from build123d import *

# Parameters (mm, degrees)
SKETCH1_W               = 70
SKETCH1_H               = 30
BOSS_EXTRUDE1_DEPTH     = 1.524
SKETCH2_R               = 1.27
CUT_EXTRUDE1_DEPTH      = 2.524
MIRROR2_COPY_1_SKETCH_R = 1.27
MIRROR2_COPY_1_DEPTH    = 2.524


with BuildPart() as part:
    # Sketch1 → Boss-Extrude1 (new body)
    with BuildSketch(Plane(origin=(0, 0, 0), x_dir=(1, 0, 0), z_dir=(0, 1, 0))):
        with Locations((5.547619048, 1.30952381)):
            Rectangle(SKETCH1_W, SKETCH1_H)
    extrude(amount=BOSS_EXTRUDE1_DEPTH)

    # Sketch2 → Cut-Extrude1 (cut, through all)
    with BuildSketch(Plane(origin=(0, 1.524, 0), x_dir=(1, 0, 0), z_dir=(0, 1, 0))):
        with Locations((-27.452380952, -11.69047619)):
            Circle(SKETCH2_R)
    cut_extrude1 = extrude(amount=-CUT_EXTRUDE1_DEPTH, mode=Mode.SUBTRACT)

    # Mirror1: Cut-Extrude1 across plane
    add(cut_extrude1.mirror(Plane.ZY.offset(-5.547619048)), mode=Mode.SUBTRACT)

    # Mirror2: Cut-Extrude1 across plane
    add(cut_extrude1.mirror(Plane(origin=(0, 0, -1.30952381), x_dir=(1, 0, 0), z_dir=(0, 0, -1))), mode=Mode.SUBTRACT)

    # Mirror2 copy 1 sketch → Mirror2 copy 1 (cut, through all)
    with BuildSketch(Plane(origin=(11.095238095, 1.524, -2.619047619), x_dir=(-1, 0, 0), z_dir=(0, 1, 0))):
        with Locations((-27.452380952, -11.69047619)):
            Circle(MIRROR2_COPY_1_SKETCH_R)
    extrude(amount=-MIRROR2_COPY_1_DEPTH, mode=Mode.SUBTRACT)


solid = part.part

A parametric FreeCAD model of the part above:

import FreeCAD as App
import Part
import Sketcher
Q = App.Units.Quantity

doc = App.newDocument("Part")
params = doc.addObject("Spreadsheet::Sheet", "Params")
for row, (alias, value) in enumerate([
    ("sketch1_width", "70 mm"),
    ("sketch1_height", "30 mm"),
    ("pad1_length", "1.524 mm"),
    ("sketch2_diameter", "2.54 mm"),
    ("sketch3_diameter", "2.54 mm"),
], start=1):
    params.set(f"A{row}", alias)
    params.set(f"B{row}", "=" + value)
    params.setAlias(f"B{row}", alias)

body = doc.addObject("PartDesign::Body", "Body")

sketch1 = body.newObject("Sketcher::SketchObject", "Sketch")
sketch1.AttachmentSupport = (doc.getObject("XZ_Plane"), [""])
sketch1.MapMode = "FlatFace"
sketch1.addGeometry([
    Part.LineSegment(App.Vector(-29, -16, 0), App.Vector(-29, 14, 0)),
    Part.LineSegment(App.Vector(-29, 14, 0), App.Vector(41, 14, 0)),
    Part.LineSegment(App.Vector(41, 14, 0), App.Vector(41, -16, 0)),
    Part.LineSegment(App.Vector(41, -16, 0), App.Vector(-29, -16, 0)),
], False)
sketch1.addConstraint([
    Sketcher.Constraint("Coincident", 0, 2, 1, 1),
    Sketcher.Constraint("Coincident", 1, 2, 2, 1),
    Sketcher.Constraint("Coincident", 2, 2, 3, 1),
    Sketcher.Constraint("Coincident", 3, 2, 0, 1),
    Sketcher.Constraint("Vertical", 0),
    Sketcher.Constraint("Horizontal", 1),
    Sketcher.Constraint("Vertical", 2),
    Sketcher.Constraint("Horizontal", 3),
    Sketcher.Constraint("DistanceX", 1, 1, 1, 2, Q("70 mm")),
    Sketcher.Constraint("DistanceY", 0, 1, 0, 2, Q("30 mm")),
    Sketcher.Constraint("DistanceX", 0, 2, -1, 1, Q("29.452381 mm")),
    Sketcher.Constraint("DistanceY", -1, 1, 0, 2, Q("13.690476 mm")),
])
sketch1.setExpression("Constraints[8]", "Params.sketch1_width")
sketch1.setExpression("Constraints[9]", "Params.sketch1_height")
pad1 = body.newObject("PartDesign::Pad", "Pad")
pad1.Profile = sketch1
pad1.setExpression("Length", "Params.pad1_length")
pad1.Reversed = True

sketch2 = body.newObject("Sketcher::SketchObject", "Sketch001")
sketch2.AttachmentSupport = (doc.getObject("XZ_Plane"), [""])
sketch2.MapMode = "FlatFace"
sketch2.AttachmentOffset = App.Placement(App.Vector(0, 0, -1.524), App.Rotation())
sketch2.addGeometry(Part.Circle(App.Vector(-27.5, 11.7, 0), App.Vector(0, 0, 1), 1.3), False)
sketch2.addConstraint([
    Sketcher.Constraint("Diameter", 0, Q("2.54 mm")),
    Sketcher.Constraint("DistanceX", 0, 3, -1, 1, Q("27.452381 mm")),
    Sketcher.Constraint("DistanceY", -1, 1, 0, 3, Q("11.690476 mm")),
])
sketch2.setExpression("Constraints[0]", "Params.sketch2_diameter")
pocket1 = body.newObject("PartDesign::Pocket", "Pocket")
pocket1.Profile = sketch2
pocket1.Type = "ThroughAll"
pocket1.Reversed = True
doc.recompute()

datumplane = body.newObject("PartDesign::Plane", "DatumPlane")
datumplane.AttachmentSupport = (doc.getObject("YZ_Plane"), [""])
datumplane.MapMode = "FlatFace"
datumplane.AttachmentOffset = App.Placement(App.Vector(0, 0, 5.547619), App.Rotation())
mirrored = body.newObject("PartDesign::Mirrored", "Mirrored")
mirrored.Originals = [pocket1]
mirrored.MirrorPlane = (datumplane, [""])
body.Tip = mirrored
doc.recompute()

datumplane2 = body.newObject("PartDesign::Plane", "DatumPlane001")
datumplane2.AttachmentSupport = (doc.getObject("XY_Plane"), [""])
datumplane2.MapMode = "FlatFace"
datumplane2.AttachmentOffset = App.Placement(App.Vector(0, 0, -1.309524), App.Rotation())
mirrored2 = body.newObject("PartDesign::Mirrored", "Mirrored001")
mirrored2.Originals = [pocket1]
mirrored2.MirrorPlane = (datumplane2, [""])
body.Tip = mirrored2

sketch3 = body.newObject("Sketcher::SketchObject", "Sketch002")
sketch3.AttachmentSupport = (doc.getObject("XZ_Plane"), [""])
sketch3.MapMode = "FlatFace"
sketch3.AttachmentOffset = App.Placement(App.Vector(0, 0, -1.524), App.Rotation())
sketch3.addGeometry(Part.Circle(App.Vector(38.5, -14.3, 0), App.Vector(0, 0, 1), 1.3), False)
sketch3.addConstraint([
    Sketcher.Constraint("Diameter", 0, Q("2.54 mm")),
    Sketcher.Constraint("DistanceX", -1, 1, 0, 3, Q("38.547619 mm")),
    Sketcher.Constraint("DistanceY", 0, 3, -1, 1, Q("14.309524 mm")),
])
sketch3.setExpression("Constraints[0]", "Params.sketch3_diameter")
pocket2 = body.newObject("PartDesign::Pocket", "Pocket001")
pocket2.Profile = sketch3
pocket2.Type = "ThroughAll"
pocket2.Reversed = True

doc.recompute()
